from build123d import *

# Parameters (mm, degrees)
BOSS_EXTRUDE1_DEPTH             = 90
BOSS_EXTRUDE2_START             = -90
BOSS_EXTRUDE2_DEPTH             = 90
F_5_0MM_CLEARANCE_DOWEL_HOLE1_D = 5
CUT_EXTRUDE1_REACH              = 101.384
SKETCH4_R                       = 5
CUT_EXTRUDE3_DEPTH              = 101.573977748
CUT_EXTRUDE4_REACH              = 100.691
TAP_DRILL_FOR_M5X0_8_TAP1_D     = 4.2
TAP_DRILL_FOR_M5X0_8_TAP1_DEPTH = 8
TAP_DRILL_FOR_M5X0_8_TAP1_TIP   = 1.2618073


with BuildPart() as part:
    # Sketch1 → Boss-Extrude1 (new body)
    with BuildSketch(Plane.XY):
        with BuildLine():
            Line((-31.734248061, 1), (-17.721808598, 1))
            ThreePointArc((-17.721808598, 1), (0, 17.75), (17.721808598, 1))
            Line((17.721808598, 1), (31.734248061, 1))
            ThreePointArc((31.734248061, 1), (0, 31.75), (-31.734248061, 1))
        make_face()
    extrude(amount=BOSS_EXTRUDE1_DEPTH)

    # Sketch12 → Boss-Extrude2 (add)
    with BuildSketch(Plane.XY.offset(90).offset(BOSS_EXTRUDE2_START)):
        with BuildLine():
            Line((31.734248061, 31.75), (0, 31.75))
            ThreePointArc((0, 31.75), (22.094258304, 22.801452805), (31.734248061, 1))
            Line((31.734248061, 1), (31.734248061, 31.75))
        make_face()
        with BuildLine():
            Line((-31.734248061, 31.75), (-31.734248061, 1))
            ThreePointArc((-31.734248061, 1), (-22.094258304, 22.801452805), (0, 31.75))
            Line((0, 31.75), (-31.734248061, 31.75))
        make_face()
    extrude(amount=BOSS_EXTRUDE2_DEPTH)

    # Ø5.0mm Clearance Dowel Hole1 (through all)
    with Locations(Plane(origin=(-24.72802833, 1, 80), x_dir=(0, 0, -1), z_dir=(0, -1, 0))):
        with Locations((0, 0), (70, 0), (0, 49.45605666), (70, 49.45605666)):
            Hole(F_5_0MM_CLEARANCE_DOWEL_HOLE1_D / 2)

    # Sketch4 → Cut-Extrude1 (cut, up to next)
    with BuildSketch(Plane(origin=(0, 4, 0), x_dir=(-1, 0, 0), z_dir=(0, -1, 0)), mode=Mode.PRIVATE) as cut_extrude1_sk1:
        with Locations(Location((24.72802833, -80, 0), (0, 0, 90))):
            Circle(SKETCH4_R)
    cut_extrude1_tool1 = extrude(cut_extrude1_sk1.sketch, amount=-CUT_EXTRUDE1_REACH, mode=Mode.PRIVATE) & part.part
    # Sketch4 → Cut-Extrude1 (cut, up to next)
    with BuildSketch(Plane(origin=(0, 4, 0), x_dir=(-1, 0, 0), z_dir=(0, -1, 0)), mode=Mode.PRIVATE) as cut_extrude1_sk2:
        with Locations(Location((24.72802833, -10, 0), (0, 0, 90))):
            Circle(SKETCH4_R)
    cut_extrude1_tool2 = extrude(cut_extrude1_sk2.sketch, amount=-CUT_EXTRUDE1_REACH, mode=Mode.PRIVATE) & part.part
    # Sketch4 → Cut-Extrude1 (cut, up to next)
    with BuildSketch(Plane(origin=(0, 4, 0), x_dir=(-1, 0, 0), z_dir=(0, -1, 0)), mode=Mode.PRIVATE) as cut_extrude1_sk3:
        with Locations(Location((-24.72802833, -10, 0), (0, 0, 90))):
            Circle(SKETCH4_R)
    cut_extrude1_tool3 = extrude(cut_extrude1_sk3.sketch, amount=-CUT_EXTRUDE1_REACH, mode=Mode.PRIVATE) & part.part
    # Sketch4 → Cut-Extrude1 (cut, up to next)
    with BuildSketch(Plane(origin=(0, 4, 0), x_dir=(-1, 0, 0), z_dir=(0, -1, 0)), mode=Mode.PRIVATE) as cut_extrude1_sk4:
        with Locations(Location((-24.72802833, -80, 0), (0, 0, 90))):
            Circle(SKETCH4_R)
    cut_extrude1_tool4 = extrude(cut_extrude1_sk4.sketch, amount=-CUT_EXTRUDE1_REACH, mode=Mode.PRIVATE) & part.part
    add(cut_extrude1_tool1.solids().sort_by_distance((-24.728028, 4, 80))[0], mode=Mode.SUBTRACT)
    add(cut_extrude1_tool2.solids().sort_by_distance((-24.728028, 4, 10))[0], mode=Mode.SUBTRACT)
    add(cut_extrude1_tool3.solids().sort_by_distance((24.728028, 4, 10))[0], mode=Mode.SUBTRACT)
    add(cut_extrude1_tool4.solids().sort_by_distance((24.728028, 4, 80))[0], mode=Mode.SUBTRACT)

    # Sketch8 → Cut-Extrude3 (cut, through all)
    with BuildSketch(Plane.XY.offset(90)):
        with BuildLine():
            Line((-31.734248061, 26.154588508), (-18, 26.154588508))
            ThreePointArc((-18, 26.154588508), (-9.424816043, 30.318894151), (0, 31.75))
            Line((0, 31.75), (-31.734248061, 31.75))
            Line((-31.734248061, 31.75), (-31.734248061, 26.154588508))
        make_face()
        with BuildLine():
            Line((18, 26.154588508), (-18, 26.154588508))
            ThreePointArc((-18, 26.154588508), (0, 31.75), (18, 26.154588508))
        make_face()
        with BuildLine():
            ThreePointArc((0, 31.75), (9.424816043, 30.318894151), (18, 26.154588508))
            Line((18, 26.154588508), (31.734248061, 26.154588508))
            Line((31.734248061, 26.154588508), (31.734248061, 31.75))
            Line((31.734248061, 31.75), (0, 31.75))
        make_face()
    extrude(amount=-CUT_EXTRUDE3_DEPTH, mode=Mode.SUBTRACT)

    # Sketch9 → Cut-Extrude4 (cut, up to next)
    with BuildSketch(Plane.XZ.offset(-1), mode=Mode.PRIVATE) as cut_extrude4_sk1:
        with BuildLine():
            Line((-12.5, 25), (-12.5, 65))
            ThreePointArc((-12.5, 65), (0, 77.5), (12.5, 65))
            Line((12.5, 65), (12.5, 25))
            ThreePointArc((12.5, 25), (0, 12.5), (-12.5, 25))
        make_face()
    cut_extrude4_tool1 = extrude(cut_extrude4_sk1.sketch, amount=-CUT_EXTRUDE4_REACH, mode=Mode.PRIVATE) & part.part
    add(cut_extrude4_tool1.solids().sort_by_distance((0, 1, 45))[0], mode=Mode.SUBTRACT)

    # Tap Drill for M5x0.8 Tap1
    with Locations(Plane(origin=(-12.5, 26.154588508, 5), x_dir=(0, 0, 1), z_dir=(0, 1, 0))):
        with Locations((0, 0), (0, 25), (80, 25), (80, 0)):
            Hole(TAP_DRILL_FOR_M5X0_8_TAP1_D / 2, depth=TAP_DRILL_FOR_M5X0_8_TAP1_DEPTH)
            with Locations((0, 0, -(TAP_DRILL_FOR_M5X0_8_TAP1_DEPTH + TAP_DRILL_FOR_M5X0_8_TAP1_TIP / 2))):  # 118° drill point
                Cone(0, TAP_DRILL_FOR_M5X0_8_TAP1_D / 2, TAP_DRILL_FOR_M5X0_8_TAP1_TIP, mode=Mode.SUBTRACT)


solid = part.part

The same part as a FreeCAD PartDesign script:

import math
import FreeCAD as App
import Part
import Sketcher
Q = App.Units.Quantity


def add_polygon(sketch, points):
    """Adds a closed chain of lines whose ends are joined by coincident constraints."""
    first, n = sketch.GeometryCount, len(points)
    for a, b in zip(points, points[1:] + points[:1]):
        sketch.addGeometry(Part.LineSegment(App.Vector(*a, 0), App.Vector(*b, 0)), False)
    for i in range(n):
        sketch.addConstraint(Sketcher.Constraint("Coincident", first + i, 2, first + (i + 1) % n, 1))

doc = App.newDocument("Part")
body = doc.addObject("PartDesign::Body", "Body")

# Sketch on XY plane
sketch1 = body.newObject("Sketcher::SketchObject", "Sketch")
sketch1.AttachmentSupport = (doc.getObject("XY_Plane"), [""])
sketch1.MapMode = "FlatFace"
sketch1.addGeometry(Part.LineSegment(App.Vector(-31.734248, 1, 0), App.Vector(-17.721809, 1, 0)), False)
sketch1.addGeometry(Part.ArcOfCircle(Part.Circle(App.Vector(0, 0, 0), App.Vector(0, 0, 1), 17.75), math.radians(3.229641), math.radians(176.770359)), False)
sketch1.addGeometry(Part.LineSegment(App.Vector(17.721809, 1, 0), App.Vector(31.734248, 1, 0)), False)
sketch1.addGeometry(Part.ArcOfCircle(Part.Circle(App.Vector(0, 0, 0), App.Vector(0, 0, 1), 31.75), math.radians(1.80489), math.radians(178.19511)), False)
sketch1.addConstraint(Sketcher.Constraint("Coincident", 0, 2, 1, 2))
sketch1.addConstraint(Sketcher.Constraint("Coincident", 1, 1, 2, 1))
sketch1.addConstraint(Sketcher.Constraint("Coincident", 2, 2, 3, 1))
sketch1.addConstraint(Sketcher.Constraint("Coincident", 3, 2, 0, 1))
sketch1.addConstraint(Sketcher.Constraint("Horizontal", 0))
sketch1.addConstraint(Sketcher.Constraint("Horizontal", 2))
sketch1.addConstraint(Sketcher.Constraint("Coincident", 1, 3, -1, 1))
sketch1.addConstraint(Sketcher.Constraint("Coincident", 3, 3, -1, 1))
sketch1.addConstraint(Sketcher.Constraint("Horizontal", 0, 2, 1, 1))
sketch1.addConstraint(Sketcher.Constraint("Radius", 1, Q("17.75 mm")))
sketch1.addConstraint(Sketcher.Constraint("Radius", 3, Q("31.75 mm")))
sketch1.addConstraint(Sketcher.Constraint("DistanceY", -1, 1, 0, 2, Q("1 mm")))
pad1 = body.newObject("PartDesign::Pad", "Pad")
pad1.Profile = sketch1
pad1.Length = 90

# Sketch on XY plane
sketch2 = body.newObject("Sketcher::SketchObject", "Sketch001")
sketch2.AttachmentSupport = (doc.getObject("XY_Plane"), [""])
sketch2.MapMode = "FlatFace"
sketch2.addGeometry(Part.LineSegment(App.Vector(31.734248, 31.75, 0), App.Vector(0, 31.75, 0)), False)
sketch2.addGeometry(Part.ArcOfCircle(Part.Circle(App.Vector(0, 0, 0), App.Vector(0, 0, 1), 31.75), math.radians(1.80489), math.radians(90)), False)
sketch2.addGeometry(Part.LineSegment(App.Vector(31.734248, 1, 0), App.Vector(31.734248, 31.75, 0)), False)
sketch2.addGeometry(Part.LineSegment(App.Vector(-31.734248, 31.75, 0), App.Vector(-31.734248, 1, 0)), False)
sketch2.addGeometry(Part.ArcOfCircle(Part.Circle(App.Vector(0, 0, 0), App.Vector(0, 0, 1), 31.75), math.radians(90), math.radians(178.19511)), False)
sketch2.addGeometry(Part.LineSegment(App.Vector(0, 31.75, 0), App.Vector(-31.734248, 31.75, 0)), False)
sketch2.addConstraint(Sketcher.Constraint("Tangent", 0, 2, 1, 2))
sketch2.addConstraint(Sketcher.Constraint("Coincident", 1, 1, 2, 1))
sketch2.addConstraint(Sketcher.Constraint("Coincident", 2, 2, 0, 1))
sketch2.addConstraint(Sketcher.Constraint("Coincident", 3, 2, 4, 2))
sketch2.addConstraint(Sketcher.Constraint("Tangent", 4, 1, 5, 1))
sketch2.addConstraint(Sketcher.Constraint("Coincident", 5, 2, 3, 1))
sketch2.addConstraint(Sketcher.Constraint("Horizontal", 0))
sketch2.addConstraint(Sketcher.Constraint("Vertical", 2))
sketch2.addConstraint(Sketcher.Constraint("Vertical", 3))
sketch2.addConstraint(Sketcher.Constraint("Horizontal", 5))
sketch2.addConstraint(Sketcher.Constraint("Coincident", 1, 3, -1, 1))
sketch2.addConstraint(Sketcher.Constraint("Coincident", 4, 3, -1, 1))
sketch2.addConstraint(Sketcher.Constraint("Equal", 1, 4))
sketch2.addConstraint(Sketcher.Constraint("Horizontal", 1, 1, 3, 2))
sketch2.addConstraint(Sketcher.Constraint("Radius", 1, Q("31.75 mm")))
sketch2.addConstraint(Sketcher.Constraint("DistanceY", -1, 1, 1, 1, Q("1 mm")))
pad2 = body.newObject("PartDesign::Pad", "Pad001")
pad2.Profile = sketch2
pad2.Length = 90

# Sketch on XZ plane
sketch3 = body.newObject("Sketcher::SketchObject", "Sketch002")
sketch3.AttachmentSupport = (doc.getObject("XZ_Plane"), [""])
sketch3.MapMode = "FlatFace"
sketch3.AttachmentOffset = App.Placement(App.Vector(0, 0, -1), App.Rotation())
sketch3.addGeometry(Part.Circle(App.Vector(-24.728028, 80, 0), App.Vector(0, 0, 1), 2.5), False)
sketch3.addGeometry(Part.Circle(App.Vector(-24.728028, 10, 0), App.Vector(0, 0, 1), 2.5), False)
sketch3.addGeometry(Part.Circle(App.Vector(24.728028, 80, 0), App.Vector(0, 0, 1), 2.5), False)
sketch3.addGeometry(Part.Circle(App.Vector(24.728028, 10, 0), App.Vector(0, 0, 1), 2.5), False)
sketch3.addConstraint(Sketcher.Constraint("Equal", 0, 1))
sketch3.addConstraint(Sketcher.Constraint("Equal", 1, 2))
sketch3.addConstraint(Sketcher.Constraint("Equal", 2, 3))
sketch3.addConstraint(Sketcher.Constraint("Symmetric", 0, 3, 2, 3, -2))
sketch3.addConstraint(Sketcher.Constraint("Symmetric", 1, 3, 3, 3, -2))
sketch3.addConstraint(Sketcher.Constraint("Vertical", 0, 3, 1, 3))
sketch3.addConstraint(Sketcher.Constraint("Diameter", 0, Q("5 mm")))
sketch3.addConstraint(Sketcher.Constraint("DistanceY", -1, 1, 0, 3, Q("80 mm")))
sketch3.addConstraint(Sketcher.Constraint("DistanceY", -1, 1, 1, 3, Q("10 mm")))
sketch3.addConstraint(Sketcher.Constraint("DistanceX", 0, 3, -1, 1, Q("24.728028 mm")))
doc.recompute()
hole = body.newObject("PartDesign::Hole", "Hole")
hole.Profile = sketch3
hole.ThreadType = "None"
hole.Diameter = 5
hole.DepthType = "ThroughAll"

# Sketch on XZ plane
sketch4 = body.newObject("Sketcher::SketchObject", "Sketch003")
sketch4.AttachmentSupport = (doc.getObject("XZ_Plane"), [""])
sketch4.MapMode = "FlatFace"
sketch4.AttachmentOffset = App.Placement(App.Vector(0, 0, -4), App.Rotation())
sketch4.addGeometry(Part.Circle(App.Vector(-24.728028, 80, 0), App.Vector(0, 0, 1), 5), False)
sketch4.addConstraint(Sketcher.Constraint("Diameter", 0, Q("10 mm")))
sketch4.addConstraint(Sketcher.Constraint("DistanceY", -1, 1, 0, 3, Q("80 mm")))
sketch4.addConstraint(Sketcher.Constraint("DistanceX", 0, 3, -1, 1, Q("24.728028 mm")))
pocket1 = body.newObject("PartDesign::Pocket", "Pocket")
pocket1.Profile = sketch4
pocket1.Length = 27.75

# Sketch on XZ plane
sketch5 = body.newObject("Sketcher::SketchObject", "Sketch004")
sketch5.AttachmentSupport = (doc.getObject("XZ_Plane"), [""])
sketch5.MapMode = "FlatFace"
sketch5.AttachmentOffset = App.Placement(App.Vector(0, 0, -4), App.Rotation())
sketch5.addGeometry(Part.Circle(App.Vector(-24.728028, 10, 0), App.Vector(0, 0, 1), 5), False)
sketch5.addConstraint(Sketcher.Constraint("Diameter", 0, Q("10 mm")))
sketch5.addConstraint(Sketcher.Constraint("DistanceY", -1, 1, 0, 3, Q("10 mm")))
sketch5.addConstraint(Sketcher.Constraint("DistanceX", 0, 3, -1, 1, Q("24.728028 mm")))
pocket2 = body.newObject("PartDesign::Pocket", "Pocket001")
pocket2.Profile = sketch5
pocket2.Length = 27.75

# Sketch on XZ plane
sketch6 = body.newObject("Sketcher::SketchObject", "Sketch005")
sketch6.AttachmentSupport = (doc.getObject("XZ_Plane"), [""])
sketch6.MapMode = "FlatFace"
sketch6.AttachmentOffset = App.Placement(App.Vector(0, 0, -4), App.Rotation())
sketch6.addGeometry(Part.Circle(App.Vector(24.728028, 10, 0), App.Vector(0, 0, 1), 5), False)
sketch6.addConstraint(Sketcher.Constraint("Diameter", 0, Q("10 mm")))
sketch6.addConstraint(Sketcher.Constraint("DistanceY", -1, 1, 0, 3, Q("10 mm")))
sketch6.addConstraint(Sketcher.Constraint("DistanceX", -1, 1, 0, 3, Q("24.728028 mm")))
pocket3 = body.newObject("PartDesign::Pocket", "Pocket002")
pocket3.Profile = sketch6
pocket3.Length = 27.75

# Sketch on XZ plane
sketch7 = body.newObject("Sketcher::SketchObject", "Sketch006")
sketch7.AttachmentSupport = (doc.getObject("XZ_Plane"), [""])
sketch7.MapMode = "FlatFace"
sketch7.AttachmentOffset = App.Placement(App.Vector(0, 0, -4), App.Rotation())
sketch7.addGeometry(Part.Circle(App.Vector(24.728028, 80, 0), App.Vector(0, 0, 1), 5), False)
sketch7.addConstraint(Sketcher.Constraint("Diameter", 0, Q("10 mm")))
sketch7.addConstraint(Sketcher.Constraint("DistanceY", -1, 1, 0, 3, Q("80 mm")))
sketch7.addConstraint(Sketcher.Constraint("DistanceX", -1, 1, 0, 3, Q("24.728028 mm")))
pocket4 = body.newObject("PartDesign::Pocket", "Pocket003")
pocket4.Profile = sketch7
pocket4.Length = 27.75

# Sketch on XY plane
sketch8 = body.newObject("Sketcher::SketchObject", "Sketch007")
sketch8.AttachmentSupport = (doc.getObject("XY_Plane"), [""])
sketch8.MapMode = "FlatFace"
sketch8.AttachmentOffset = App.Placement(App.Vector(0, 0, 90), App.Rotation())
add_polygon(sketch8, [(-31.734248, 26.154589), (31.734248, 26.154589), (31.734248, 31.75), (-31.734248, 31.75)])  # lines 0-3
sketch8.addConstraint(Sketcher.Constraint("Horizontal", 0))
sketch8.addConstraint(Sketcher.Constraint("Vertical", 1))
sketch8.addConstraint(Sketcher.Constraint("Horizontal", 2))
sketch8.addConstraint(Sketcher.Constraint("Vertical", 3))
sketch8.addConstraint(Sketcher.Constraint("DistanceY", -1, 1, 1, 2, Q("31.75 mm")))
sketch8.addConstraint(Sketcher.Constraint("DistanceY", 1, 1, 1, 2, Q("5.595411 mm")))
sketch8.addConstraint(Sketcher.Constraint("DistanceX", 0, 1, 0, 2, Q("63.468496 mm")))
sketch8.addConstraint(Sketcher.Constraint("DistanceX", -1, 1, 0, 2, Q("31.734248 mm")))
pocket5 = body.newObject("PartDesign::Pocket", "Pocket004")
pocket5.Profile = sketch8
pocket5.Type = "ThroughAll"

# Sketch on XZ plane
sketch9 = body.newObject("Sketcher::SketchObject", "Sketch008")
sketch9.AttachmentSupport = (doc.getObject("XZ_Plane"), [""])
sketch9.MapMode = "FlatFace"
sketch9.AttachmentOffset = App.Placement(App.Vector(0, 0, -1), App.Rotation())
sketch9.addGeometry(Part.LineSegment(App.Vector(-12.5, 65, 0), App.Vector(-12.5, 25, 0)), False)
sketch9.addGeometry(Part.ArcOfCircle(Part.Circle(App.Vector(0, 25, 0), App.Vector(0, 0, 1), 12.5), math.radians(180), math.radians(360)), False)
sketch9.addGeometry(Part.LineSegment(App.Vector(12.5, 25, 0), App.Vector(12.5, 65, 0)), False)
sketch9.addGeometry(Part.ArcOfCircle(Part.Circle(App.Vector(0, 65, 0), App.Vector(0, 0, 1), 12.5), math.radians(0), math.radians(180)), False)
sketch9.addConstraint(Sketcher.Constraint("Tangent", 0, 2, 1, 1))
sketch9.addConstraint(Sketcher.Constraint("Tangent", 1, 2, 2, 1))
sketch9.addConstraint(Sketcher.Constraint("Tangent", 2, 2, 3, 1))
sketch9.addConstraint(Sketcher.Constraint("Tangent", 3, 2, 0, 1))
sketch9.addConstraint(Sketcher.Constraint("Vertical", 0))
sketch9.addConstraint(Sketcher.Constraint("Vertical", 2))
sketch9.addConstraint(Sketcher.Constraint("PointOnObject", 1, 3, -2))
sketch9.addConstraint(Sketcher.Constraint("Radius", 1, Q("12.5 mm")))
sketch9.addConstraint(Sketcher.Constraint("DistanceY", 0, 2, 0, 1, Q("40 mm")))
sketch9.addConstraint(Sketcher.Constraint("DistanceY", -1, 1, 1, 3, Q("25 mm")))
pocket6 = body.newObject("PartDesign::Pocket", "Pocket005")
pocket6.Profile = sketch9
pocket6.Length = 25.154589

# Sketch on XZ plane
sketch10 = body.newObject("Sketcher::SketchObject", "Sketch009")
sketch10.AttachmentSupport = (doc.getObject("XZ_Plane"), [""])
sketch10.MapMode = "FlatFace"
sketch10.AttachmentOffset = App.Placement(App.Vector(0, 0, -26.154589), App.Rotation())
sketch10.addGeometry(Part.Circle(App.Vector(-12.5, 5, 0), App.Vector(0, 0, 1), 2.1), False)
sketch10.addGeometry(Part.Circle(App.Vector(12.5, 5, 0), App.Vector(0, 0, 1), 2.1), False)
sketch10.addGeometry(Part.Circle(App.Vector(12.5, 85, 0), App.Vector(0, 0, 1), 2.1), False)
sketch10.addGeometry(Part.Circle(App.Vector(-12.5, 85, 0), App.Vector(0, 0, 1), 2.1), False)
sketch10.addConstraint(Sketcher.Constraint("Equal", 0, 1))
sketch10.addConstraint(Sketcher.Constraint("Equal", 1, 2))
sketch10.addConstraint(Sketcher.Constraint("Equal", 2, 3))
sketch10.addConstraint(Sketcher.Constraint("Symmetric", 0, 3, 1, 3, -2))
sketch10.addConstraint(Sketcher.Constraint("Symmetric", 2, 3, 3, 3, -2))
sketch10.addConstraint(Sketcher.Constraint("Vertical", 1, 3, 2, 3))
sketch10.addConstraint(Sketcher.Constraint("Diameter", 0, Q("4.2 mm")))
sketch10.addConstraint(Sketcher.Constraint("DistanceY", -1, 1, 0, 3, Q("5 mm")))
sketch10.addConstraint(Sketcher.Constraint("DistanceY", -1, 1, 2, 3, Q("85 mm")))
sketch10.addConstraint(Sketcher.Constraint("DistanceX", 0, 3, 1, 3, Q("25 mm")))
doc.recompute()
hole2 = body.newObject("PartDesign::Hole", "Hole001")
hole2.Profile = sketch10
hole2.ThreadType = "None"
hole2.Diameter = 4.2
hole2.DepthType = "Dimension"
hole2.Depth = 8
hole2.DrillPoint = "Angled"
hole2.DrillPointAngle = 118
hole2.Reversed = True

doc.recompute()
